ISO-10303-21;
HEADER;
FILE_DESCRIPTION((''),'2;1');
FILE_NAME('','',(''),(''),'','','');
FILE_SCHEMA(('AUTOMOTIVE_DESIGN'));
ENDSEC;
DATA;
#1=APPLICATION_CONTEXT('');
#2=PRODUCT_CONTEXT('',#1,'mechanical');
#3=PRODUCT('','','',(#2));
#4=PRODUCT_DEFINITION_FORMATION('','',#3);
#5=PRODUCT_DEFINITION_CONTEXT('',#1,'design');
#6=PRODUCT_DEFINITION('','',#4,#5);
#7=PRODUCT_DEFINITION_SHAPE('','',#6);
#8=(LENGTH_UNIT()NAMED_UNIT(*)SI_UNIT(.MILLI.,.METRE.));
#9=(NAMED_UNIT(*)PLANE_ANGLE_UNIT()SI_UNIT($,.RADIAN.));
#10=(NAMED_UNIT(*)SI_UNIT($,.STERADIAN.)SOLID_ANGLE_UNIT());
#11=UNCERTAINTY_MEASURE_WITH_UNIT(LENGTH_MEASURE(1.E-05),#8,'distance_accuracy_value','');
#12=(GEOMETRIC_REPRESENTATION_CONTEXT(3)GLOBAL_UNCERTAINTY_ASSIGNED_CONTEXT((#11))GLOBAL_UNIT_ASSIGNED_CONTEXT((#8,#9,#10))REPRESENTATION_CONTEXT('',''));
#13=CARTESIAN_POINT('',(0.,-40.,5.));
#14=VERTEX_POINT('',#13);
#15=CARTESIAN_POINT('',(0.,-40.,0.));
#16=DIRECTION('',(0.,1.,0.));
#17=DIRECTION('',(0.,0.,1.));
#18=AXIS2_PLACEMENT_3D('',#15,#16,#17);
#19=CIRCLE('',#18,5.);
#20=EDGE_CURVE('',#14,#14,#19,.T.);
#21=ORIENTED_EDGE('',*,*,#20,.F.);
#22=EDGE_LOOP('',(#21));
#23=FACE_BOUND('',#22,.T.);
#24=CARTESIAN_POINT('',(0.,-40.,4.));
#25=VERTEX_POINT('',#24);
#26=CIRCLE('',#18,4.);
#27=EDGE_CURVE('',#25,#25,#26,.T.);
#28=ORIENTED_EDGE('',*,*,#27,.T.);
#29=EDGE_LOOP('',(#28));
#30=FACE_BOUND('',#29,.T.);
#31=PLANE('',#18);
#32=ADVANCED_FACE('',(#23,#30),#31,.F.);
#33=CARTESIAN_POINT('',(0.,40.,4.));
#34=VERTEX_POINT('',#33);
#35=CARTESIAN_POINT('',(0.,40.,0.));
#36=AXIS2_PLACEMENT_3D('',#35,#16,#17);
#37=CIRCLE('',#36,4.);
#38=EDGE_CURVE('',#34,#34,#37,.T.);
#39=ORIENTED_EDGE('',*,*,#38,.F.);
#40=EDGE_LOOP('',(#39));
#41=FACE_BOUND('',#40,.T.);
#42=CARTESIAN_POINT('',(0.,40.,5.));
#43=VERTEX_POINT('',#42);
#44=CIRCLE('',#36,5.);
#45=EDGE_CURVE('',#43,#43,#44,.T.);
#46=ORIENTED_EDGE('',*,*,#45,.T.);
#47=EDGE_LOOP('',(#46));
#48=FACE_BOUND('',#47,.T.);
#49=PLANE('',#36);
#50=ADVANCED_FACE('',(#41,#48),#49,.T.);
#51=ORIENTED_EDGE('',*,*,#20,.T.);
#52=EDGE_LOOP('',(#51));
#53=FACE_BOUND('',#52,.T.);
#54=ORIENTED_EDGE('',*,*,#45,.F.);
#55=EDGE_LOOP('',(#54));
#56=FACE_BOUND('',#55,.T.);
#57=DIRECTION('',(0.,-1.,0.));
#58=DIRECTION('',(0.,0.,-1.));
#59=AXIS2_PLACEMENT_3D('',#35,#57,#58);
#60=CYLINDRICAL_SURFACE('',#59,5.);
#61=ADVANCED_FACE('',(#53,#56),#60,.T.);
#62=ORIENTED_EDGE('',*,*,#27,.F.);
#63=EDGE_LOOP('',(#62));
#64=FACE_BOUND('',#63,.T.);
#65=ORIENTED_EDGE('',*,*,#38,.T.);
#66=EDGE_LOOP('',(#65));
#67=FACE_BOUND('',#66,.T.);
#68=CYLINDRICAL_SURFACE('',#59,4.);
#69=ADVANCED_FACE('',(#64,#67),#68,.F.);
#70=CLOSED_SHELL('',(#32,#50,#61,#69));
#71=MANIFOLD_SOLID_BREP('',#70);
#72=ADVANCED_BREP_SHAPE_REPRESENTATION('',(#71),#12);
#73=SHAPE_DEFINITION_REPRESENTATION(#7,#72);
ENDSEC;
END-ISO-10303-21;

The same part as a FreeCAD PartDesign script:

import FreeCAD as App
import Part
import Sketcher
Q = App.Units.Quantity

doc = App.newDocument("Part")
params = doc.addObject("Spreadsheet::Sheet", "Params")
for row, (alias, value) in enumerate([
    ("sketch1_diameter", "10 mm"),
    ("sketch1_diameter2", "8 mm"),
    ("pad1_length", "80 mm"),
], start=1):
    params.set(f"A{row}", alias)
    params.set(f"B{row}", "=" + value)
    params.setAlias(f"B{row}", alias)

body = doc.addObject("PartDesign::Body", "Body")

# Sketch on XZ plane
sketch1 = doc.addObject("Sketcher::SketchObject", "Sketch")
body.addObject(sketch1)
sketch1.AttachmentSupport = (doc.XZ_Plane, [""])
sketch1.MapMode = "FlatFace"
sketch1.addGeometry(Part.Circle(App.Vector(0, 0, 0), App.Vector(0, 0, 1), 5), False)
sketch1.addGeometry(Part.Circle(App.Vector(0, 0, 0), App.Vector(0, 0, 1), 4), False)
sketch1.addConstraint(Sketcher.Constraint("Coincident", 0, 3, -1, 1))
sketch1.addConstraint(Sketcher.Constraint("Coincident", 1, 3, -1, 1))
sketch1.addConstraint(Sketcher.Constraint("Diameter", 0, Q("10 mm")))
sketch1.addConstraint(Sketcher.Constraint("Diameter", 1, Q("8 mm")))
sketch1.setExpression("Constraints[2]", "Params.sketch1_diameter")
sketch1.setExpression("Constraints[3]", "Params.sketch1_diameter2")
pad1 = doc.addObject("PartDesign::Pad", "Pad")
body.addObject(pad1)
pad1.Profile = sketch1
pad1.setExpression("Length", "Params.pad1_length")
pad1.Midplane = True

doc.recompute()
